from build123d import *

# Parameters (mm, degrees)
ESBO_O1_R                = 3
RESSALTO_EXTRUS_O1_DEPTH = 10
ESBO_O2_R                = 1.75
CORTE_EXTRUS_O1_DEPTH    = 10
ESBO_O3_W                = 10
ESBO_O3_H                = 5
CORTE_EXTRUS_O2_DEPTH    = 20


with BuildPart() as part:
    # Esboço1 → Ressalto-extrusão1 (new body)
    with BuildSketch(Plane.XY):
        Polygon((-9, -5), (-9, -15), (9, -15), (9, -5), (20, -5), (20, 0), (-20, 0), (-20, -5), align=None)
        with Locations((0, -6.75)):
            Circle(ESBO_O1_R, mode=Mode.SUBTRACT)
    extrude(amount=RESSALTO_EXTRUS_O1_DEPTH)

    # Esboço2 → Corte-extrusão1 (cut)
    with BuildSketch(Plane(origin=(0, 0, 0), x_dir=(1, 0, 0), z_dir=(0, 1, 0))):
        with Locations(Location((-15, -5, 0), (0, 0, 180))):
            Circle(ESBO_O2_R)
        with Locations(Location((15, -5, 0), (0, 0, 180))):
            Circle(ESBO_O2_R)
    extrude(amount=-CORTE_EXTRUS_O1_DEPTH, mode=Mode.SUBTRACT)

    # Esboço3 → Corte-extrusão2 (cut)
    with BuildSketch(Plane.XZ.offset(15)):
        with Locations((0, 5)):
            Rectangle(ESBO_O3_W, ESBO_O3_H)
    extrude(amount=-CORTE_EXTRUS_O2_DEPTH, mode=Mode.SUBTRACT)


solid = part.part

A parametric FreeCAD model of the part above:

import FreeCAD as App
import Part
import Sketcher

V = App.Vector
Q = App.Units.Quantity


def add_polygon(sketch, points):
    """Adds a closed chain of lines whose ends are joined by coincident constraints."""
    first, n = sketch.GeometryCount, len(points)
    for a, b in zip(points, points[1:] + points[:1]):
        sketch.addGeometry(Part.LineSegment(App.Vector(*a, 0), App.Vector(*b, 0)), False)
    for i in range(n):
        sketch.addConstraint(Sketcher.Constraint("Coincident", first + i, 2, first + (i + 1) % n, 1))

doc = App.newDocument("Part")
body = doc.addObject("PartDesign::Body", "Body")

sketch1 = body.newObject("Sketcher::SketchObject", "Sketch")
sketch1.AttachmentSupport = (doc.getObject("XY_Plane"), [""])
sketch1.MapMode = "FlatFace"
add_polygon(sketch1, [(-9, -5), (-9, -15), (9, -15), (9, -5), (20, -5), (20, 0), (-20, 0), (-20, -5)])
sketch1.addGeometry(Part.Circle(V(0, -6.8, 0), V(0, 0, 1), 3), False)
sketch1.addConstraint(Sketcher.Constraint("Vertical", 0))
sketch1.addConstraint(Sketcher.Constraint("Horizontal", 1))
sketch1.addConstraint(Sketcher.Constraint("Vertical", 2))
sketch1.addConstraint(Sketcher.Constraint("Horizontal", 3))
sketch1.addConstraint(Sketcher.Constraint("Vertical", 4))
sketch1.addConstraint(Sketcher.Constraint("Horizontal", 5))
sketch1.addConstraint(Sketcher.Constraint("Vertical", 6))
sketch1.addConstraint(Sketcher.Constraint("Horizontal", 7))
sketch1.addConstraint(Sketcher.Constraint("Symmetric", 4, 2, 5, 2, -1, 1))
sketch1.addConstraint(Sketcher.Constraint("Symmetric", 2, 2, 7, 2, -2))
sketch1.addConstraint(Sketcher.Constraint("PointOnObject", 8, 3, -2))
sketch1.addConstraint(Sketcher.Constraint("Diameter", 8, Q("6 mm")))
sketch1.addConstraint(Sketcher.Constraint("DistanceX", 1, 1, 1, 2, Q("18 mm")))
sketch1.addConstraint(Sketcher.Constraint("DistanceX", 3, 1, 3, 2, Q("11 mm")))
sketch1.addConstraint(Sketcher.Constraint("DistanceY", 0, 2, 0, 1, Q("10 mm")))
sketch1.addConstraint(Sketcher.Constraint("DistanceY", 4, 1, 4, 2, Q("5 mm")))
sketch1.addConstraint(Sketcher.Constraint("DistanceY", 8, 3, -1, 1, Q("6.75 mm")))
pad1 = body.newObject("PartDesign::Pad", "Pad")
pad1.Profile = sketch1
pad1.Length = 10

sketch2 = body.newObject("Sketcher::SketchObject", "Sketch001")
sketch2.AttachmentSupport = (doc.getObject("XZ_Plane"), [""])
sketch2.MapMode = "FlatFace"
sketch2.addGeometry(Part.Circle(V(-15, 5, 0), V(0, 0, 1), 1.8), False)
sketch2.addGeometry(Part.Circle(V(15, 5, 0), V(0, 0, 1), 1.8), False)
sketch2.addConstraint(Sketcher.Constraint("Equal", 0, 1))
sketch2.addConstraint(Sketcher.Constraint("Symmetric", 0, 3, 1, 3, -2))
sketch2.addConstraint(Sketcher.Constraint("Diameter", 0, Q("3.5 mm")))
sketch2.addConstraint(Sketcher.Constraint("DistanceX", 0, 3, -1, 1, Q("15 mm")))
sketch2.addConstraint(Sketcher.Constraint("DistanceY", -1, 1, 0, 3, Q("5 mm")))
pocket1 = body.newObject("PartDesign::Pocket", "Pocket")
pocket1.Profile = sketch2
pocket1.Length = 10
pocket1.Reversed = True

sketch3 = body.newObject("Sketcher::SketchObject", "Sketch002")
sketch3.AttachmentSupport = (doc.getObject("XZ_Plane"), [""])
sketch3.MapMode = "FlatFace"
sketch3.AttachmentOffset = App.Placement(V(0, 0, 15), App.Rotation())
add_polygon(sketch3, [(-5, 8), (-5, 2), (5, 2), (5, 8)])
sketch3.addConstraint(Sketcher.Constraint("Vertical", 0))
sketch3.addConstraint(Sketcher.Constraint("Horizontal", 1))
sketch3.addConstraint(Sketcher.Constraint("Vertical", 2))
sketch3.addConstraint(Sketcher.Constraint("Horizontal", 3))
sketch3.addConstraint(Sketcher.Constraint("DistanceX", 1, 1, 1, 2, Q("10 mm")))
sketch3.addConstraint(Sketcher.Constraint("DistanceY", 0, 2, 0, 1, Q("5 mm")))
sketch3.addConstraint(Sketcher.Constraint("DistanceX", 0, 2, -1, 1, Q("5 mm")))
sketch3.addConstraint(Sketcher.Constraint("DistanceY", -1, 1, 0, 2, Q("2.5 mm")))
pocket2 = body.newObject("PartDesign::Pocket", "Pocket001")
pocket2.Profile = sketch3
pocket2.Length = 20

doc.recompute()
